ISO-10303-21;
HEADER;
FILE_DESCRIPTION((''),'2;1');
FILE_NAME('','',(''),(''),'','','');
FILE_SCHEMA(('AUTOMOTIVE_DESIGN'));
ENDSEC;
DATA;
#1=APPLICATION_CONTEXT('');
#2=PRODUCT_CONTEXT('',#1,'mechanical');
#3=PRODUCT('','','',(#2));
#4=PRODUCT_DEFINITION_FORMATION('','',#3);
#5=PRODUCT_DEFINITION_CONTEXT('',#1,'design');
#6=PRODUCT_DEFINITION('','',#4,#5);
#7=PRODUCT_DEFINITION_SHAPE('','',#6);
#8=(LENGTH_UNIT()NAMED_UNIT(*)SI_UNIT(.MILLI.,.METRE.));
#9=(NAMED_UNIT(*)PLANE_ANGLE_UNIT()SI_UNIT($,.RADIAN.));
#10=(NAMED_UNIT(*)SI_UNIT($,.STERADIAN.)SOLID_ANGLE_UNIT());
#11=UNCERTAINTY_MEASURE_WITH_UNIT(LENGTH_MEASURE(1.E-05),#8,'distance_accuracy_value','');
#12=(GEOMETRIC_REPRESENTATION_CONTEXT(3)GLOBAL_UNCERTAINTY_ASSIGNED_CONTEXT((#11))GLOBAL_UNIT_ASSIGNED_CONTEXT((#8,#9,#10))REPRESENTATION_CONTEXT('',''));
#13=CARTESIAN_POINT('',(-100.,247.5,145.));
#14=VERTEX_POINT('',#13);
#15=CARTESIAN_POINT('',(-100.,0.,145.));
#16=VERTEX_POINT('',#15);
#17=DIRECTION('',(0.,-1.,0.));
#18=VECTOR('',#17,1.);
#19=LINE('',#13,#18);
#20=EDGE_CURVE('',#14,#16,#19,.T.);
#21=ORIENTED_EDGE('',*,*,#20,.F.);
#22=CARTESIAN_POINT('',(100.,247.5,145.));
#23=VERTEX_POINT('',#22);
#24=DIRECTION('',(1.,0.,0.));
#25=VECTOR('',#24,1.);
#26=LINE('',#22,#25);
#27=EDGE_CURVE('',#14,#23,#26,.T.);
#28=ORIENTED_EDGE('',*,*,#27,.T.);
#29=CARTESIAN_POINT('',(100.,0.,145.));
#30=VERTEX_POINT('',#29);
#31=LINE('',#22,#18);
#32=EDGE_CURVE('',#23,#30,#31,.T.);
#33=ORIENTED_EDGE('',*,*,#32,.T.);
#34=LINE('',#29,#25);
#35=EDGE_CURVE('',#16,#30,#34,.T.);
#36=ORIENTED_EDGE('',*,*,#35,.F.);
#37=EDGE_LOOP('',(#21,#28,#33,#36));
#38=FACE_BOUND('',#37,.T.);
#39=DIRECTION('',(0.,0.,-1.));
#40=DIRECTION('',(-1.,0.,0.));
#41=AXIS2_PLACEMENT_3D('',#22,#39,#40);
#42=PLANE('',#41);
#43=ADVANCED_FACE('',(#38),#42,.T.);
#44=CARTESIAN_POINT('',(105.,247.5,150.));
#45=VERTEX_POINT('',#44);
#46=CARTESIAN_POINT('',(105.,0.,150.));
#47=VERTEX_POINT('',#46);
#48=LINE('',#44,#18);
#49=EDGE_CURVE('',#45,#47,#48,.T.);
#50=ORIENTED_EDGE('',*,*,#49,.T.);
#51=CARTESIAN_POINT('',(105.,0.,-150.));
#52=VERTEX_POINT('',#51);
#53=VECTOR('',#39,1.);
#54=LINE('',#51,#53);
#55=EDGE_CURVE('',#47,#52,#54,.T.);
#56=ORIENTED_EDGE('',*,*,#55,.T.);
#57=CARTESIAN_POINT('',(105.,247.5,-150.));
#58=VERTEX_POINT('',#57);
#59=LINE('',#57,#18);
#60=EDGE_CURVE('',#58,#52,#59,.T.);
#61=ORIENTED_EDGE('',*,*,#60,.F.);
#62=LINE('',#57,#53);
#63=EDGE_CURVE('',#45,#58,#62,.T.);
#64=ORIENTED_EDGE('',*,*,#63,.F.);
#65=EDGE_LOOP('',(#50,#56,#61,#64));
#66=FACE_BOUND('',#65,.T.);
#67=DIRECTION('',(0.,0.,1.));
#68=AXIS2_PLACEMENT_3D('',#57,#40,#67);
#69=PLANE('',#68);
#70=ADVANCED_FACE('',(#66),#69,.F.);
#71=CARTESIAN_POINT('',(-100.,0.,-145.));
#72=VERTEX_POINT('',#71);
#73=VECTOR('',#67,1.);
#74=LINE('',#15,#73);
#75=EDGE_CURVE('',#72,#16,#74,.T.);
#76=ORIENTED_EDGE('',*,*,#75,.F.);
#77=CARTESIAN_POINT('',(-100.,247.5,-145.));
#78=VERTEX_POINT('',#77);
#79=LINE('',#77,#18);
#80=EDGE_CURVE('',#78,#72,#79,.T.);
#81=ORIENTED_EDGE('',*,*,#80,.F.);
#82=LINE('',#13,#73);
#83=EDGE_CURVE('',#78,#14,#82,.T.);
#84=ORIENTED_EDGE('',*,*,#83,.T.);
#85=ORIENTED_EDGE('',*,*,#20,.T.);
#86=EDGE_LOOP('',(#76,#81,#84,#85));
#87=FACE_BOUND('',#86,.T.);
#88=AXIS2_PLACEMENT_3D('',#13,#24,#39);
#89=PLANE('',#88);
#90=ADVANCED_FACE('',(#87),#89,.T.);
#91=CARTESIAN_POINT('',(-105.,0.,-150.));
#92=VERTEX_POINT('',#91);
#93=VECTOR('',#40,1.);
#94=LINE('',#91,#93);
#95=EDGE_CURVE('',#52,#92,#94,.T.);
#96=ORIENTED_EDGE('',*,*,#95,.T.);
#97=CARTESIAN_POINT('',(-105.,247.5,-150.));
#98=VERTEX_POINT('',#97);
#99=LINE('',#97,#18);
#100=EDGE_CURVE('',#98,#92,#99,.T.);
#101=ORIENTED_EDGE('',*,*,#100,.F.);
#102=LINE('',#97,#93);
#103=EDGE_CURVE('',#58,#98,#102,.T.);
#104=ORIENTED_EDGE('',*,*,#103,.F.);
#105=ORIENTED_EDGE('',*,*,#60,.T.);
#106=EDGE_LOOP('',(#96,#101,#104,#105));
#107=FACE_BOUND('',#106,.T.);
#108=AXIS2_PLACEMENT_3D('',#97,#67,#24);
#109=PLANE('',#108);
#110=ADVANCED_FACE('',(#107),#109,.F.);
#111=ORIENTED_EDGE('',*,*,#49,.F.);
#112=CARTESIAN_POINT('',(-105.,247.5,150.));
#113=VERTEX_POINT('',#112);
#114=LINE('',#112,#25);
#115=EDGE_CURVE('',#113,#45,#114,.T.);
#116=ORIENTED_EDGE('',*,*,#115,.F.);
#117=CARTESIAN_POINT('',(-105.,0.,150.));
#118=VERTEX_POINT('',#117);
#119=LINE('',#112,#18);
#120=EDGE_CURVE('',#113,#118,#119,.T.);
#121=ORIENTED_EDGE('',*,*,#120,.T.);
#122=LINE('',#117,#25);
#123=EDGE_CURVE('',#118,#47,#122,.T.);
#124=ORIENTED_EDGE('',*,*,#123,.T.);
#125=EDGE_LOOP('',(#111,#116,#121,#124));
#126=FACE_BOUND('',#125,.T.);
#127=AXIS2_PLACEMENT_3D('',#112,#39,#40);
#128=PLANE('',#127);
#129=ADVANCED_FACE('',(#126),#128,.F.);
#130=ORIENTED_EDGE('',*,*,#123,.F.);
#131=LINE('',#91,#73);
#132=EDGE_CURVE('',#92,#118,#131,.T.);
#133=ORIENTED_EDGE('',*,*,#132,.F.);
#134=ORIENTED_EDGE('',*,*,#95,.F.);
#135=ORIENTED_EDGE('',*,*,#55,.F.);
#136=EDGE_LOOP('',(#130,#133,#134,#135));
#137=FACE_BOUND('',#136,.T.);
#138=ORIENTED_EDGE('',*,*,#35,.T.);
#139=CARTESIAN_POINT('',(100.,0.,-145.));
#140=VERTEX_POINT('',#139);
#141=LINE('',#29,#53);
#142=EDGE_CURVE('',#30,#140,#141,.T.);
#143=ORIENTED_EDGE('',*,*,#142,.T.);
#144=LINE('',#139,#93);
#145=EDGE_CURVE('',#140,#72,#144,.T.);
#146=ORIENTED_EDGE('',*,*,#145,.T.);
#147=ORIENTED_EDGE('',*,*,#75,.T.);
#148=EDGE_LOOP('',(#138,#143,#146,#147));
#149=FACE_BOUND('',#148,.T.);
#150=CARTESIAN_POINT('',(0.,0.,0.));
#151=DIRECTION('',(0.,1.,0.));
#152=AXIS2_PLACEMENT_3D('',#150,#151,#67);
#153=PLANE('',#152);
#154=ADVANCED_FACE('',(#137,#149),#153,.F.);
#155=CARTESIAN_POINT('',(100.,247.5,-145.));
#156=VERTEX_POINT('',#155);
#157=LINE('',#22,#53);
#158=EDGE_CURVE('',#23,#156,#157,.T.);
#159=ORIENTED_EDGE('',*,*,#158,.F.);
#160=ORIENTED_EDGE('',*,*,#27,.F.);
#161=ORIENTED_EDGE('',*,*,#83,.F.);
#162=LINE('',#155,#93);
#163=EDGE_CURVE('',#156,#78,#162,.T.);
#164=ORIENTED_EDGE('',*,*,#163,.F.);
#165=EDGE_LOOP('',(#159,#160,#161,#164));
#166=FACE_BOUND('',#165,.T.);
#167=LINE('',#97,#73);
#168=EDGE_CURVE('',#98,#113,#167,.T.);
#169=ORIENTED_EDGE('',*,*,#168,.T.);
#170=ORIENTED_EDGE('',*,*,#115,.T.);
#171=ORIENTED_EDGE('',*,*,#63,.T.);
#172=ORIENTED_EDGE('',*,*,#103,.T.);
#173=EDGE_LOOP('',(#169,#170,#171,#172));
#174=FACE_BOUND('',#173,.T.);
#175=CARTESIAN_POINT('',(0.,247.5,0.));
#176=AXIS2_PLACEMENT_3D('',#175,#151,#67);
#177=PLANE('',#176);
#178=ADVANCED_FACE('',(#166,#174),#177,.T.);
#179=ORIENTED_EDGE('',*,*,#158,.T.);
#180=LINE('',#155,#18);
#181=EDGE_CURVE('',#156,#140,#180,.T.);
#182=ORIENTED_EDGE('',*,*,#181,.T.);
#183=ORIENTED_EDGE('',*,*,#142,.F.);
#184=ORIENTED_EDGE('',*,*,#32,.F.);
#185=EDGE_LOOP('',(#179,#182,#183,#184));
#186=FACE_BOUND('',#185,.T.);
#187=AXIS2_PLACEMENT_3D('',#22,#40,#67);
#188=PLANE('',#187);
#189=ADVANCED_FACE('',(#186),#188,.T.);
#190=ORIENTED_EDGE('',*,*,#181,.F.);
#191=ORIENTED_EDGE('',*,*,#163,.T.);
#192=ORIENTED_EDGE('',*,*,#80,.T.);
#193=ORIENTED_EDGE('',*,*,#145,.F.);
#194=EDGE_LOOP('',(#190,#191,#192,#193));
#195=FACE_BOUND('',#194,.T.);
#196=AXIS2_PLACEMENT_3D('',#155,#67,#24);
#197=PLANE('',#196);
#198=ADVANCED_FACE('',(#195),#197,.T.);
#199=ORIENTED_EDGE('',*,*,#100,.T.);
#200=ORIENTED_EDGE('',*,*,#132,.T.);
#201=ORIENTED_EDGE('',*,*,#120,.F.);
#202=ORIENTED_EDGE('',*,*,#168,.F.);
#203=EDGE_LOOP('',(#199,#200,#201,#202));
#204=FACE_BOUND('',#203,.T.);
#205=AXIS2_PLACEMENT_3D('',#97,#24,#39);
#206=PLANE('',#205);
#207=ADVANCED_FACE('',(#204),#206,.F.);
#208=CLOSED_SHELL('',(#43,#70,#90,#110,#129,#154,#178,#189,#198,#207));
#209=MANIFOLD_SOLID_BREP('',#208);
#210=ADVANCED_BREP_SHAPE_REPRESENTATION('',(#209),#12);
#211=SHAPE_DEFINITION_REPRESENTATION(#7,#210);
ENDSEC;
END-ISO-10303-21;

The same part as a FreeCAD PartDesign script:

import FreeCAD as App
import Part
import Sketcher

V = App.Vector


def add_polygon(sketch, points):
    """Adds a closed chain of lines whose ends are joined by coincident constraints."""
    first, n = sketch.GeometryCount, len(points)
    for a, b in zip(points, points[1:] + points[:1]):
        sketch.addGeometry(Part.LineSegment(App.Vector(*a, 0), App.Vector(*b, 0)), False)
    for i in range(n):
        sketch.addConstraint(Sketcher.Constraint("Coincident", first + i, 2, first + (i + 1) % n, 1))

doc = App.newDocument("Part")
params = doc.addObject("Spreadsheet::Sheet", "Params")
for row, (alias, value) in enumerate([
    ("sketch1_width", "210 mm"),
    ("sketch1_width2", "200 mm"),
    ("sketch1_height", "300 mm"),
    ("sketch1_height2", "290 mm"),
    ("pad1_length", "247.5 mm"),
], start=1):
    params.set(f"A{row}", alias)
    params.set(f"B{row}", "=" + value)
    params.setAlias(f"B{row}", alias)

body = doc.addObject("PartDesign::Body", "Body")

sketch1 = doc.addObject("Sketcher::SketchObject", "Sketch")
body.addObject(sketch1)
sketch1.AttachmentSupport = (doc.XZ_Plane, [""])
sketch1.MapMode = "FlatFace"
add_polygon(sketch1, [(-105, -150), (-105, 150), (105, 150), (105, -150)])
add_polygon(sketch1, [(100, 145), (-100, 145), (-100, -145), (100, -145)])
sketch1.addConstraint([
    Sketcher.Constraint("Vertical", 0),
    Sketcher.Constraint("Horizontal", 1),
    Sketcher.Constraint("Vertical", 2),
    Sketcher.Constraint("Horizontal", 3),
    Sketcher.Constraint("Horizontal", 4),
    Sketcher.Constraint("Vertical", 5),
    Sketcher.Constraint("Horizontal", 6),
    Sketcher.Constraint("Vertical", 7),
    Sketcher.Constraint("Symmetric", 0, 2, 2, 2, -1, 1),
    Sketcher.Constraint("Symmetric", 4, 2, 6, 2, -1, 1),
    Sketcher.Constraint("DistanceX", 1, 1, 1, 2, 210.0),
    Sketcher.Constraint("DistanceX", 4, 2, 4, 1, 200.0),
    Sketcher.Constraint("DistanceY", 0, 1, 0, 2, 300.0),
    Sketcher.Constraint("DistanceY", 5, 2, 5, 1, 290.0),
])
sketch1.setExpression("Constraints[18]", "Params.sketch1_width")
sketch1.setExpression("Constraints[19]", "Params.sketch1_width2")
sketch1.setExpression("Constraints[20]", "Params.sketch1_height")
sketch1.setExpression("Constraints[21]", "Params.sketch1_height2")
pad1 = doc.addObject("PartDesign::Pad", "Pad")
body.addObject(pad1)
pad1.Profile = sketch1
pad1.setExpression("Length", "Params.pad1_length")
pad1.Reversed = True

doc.recompute()
